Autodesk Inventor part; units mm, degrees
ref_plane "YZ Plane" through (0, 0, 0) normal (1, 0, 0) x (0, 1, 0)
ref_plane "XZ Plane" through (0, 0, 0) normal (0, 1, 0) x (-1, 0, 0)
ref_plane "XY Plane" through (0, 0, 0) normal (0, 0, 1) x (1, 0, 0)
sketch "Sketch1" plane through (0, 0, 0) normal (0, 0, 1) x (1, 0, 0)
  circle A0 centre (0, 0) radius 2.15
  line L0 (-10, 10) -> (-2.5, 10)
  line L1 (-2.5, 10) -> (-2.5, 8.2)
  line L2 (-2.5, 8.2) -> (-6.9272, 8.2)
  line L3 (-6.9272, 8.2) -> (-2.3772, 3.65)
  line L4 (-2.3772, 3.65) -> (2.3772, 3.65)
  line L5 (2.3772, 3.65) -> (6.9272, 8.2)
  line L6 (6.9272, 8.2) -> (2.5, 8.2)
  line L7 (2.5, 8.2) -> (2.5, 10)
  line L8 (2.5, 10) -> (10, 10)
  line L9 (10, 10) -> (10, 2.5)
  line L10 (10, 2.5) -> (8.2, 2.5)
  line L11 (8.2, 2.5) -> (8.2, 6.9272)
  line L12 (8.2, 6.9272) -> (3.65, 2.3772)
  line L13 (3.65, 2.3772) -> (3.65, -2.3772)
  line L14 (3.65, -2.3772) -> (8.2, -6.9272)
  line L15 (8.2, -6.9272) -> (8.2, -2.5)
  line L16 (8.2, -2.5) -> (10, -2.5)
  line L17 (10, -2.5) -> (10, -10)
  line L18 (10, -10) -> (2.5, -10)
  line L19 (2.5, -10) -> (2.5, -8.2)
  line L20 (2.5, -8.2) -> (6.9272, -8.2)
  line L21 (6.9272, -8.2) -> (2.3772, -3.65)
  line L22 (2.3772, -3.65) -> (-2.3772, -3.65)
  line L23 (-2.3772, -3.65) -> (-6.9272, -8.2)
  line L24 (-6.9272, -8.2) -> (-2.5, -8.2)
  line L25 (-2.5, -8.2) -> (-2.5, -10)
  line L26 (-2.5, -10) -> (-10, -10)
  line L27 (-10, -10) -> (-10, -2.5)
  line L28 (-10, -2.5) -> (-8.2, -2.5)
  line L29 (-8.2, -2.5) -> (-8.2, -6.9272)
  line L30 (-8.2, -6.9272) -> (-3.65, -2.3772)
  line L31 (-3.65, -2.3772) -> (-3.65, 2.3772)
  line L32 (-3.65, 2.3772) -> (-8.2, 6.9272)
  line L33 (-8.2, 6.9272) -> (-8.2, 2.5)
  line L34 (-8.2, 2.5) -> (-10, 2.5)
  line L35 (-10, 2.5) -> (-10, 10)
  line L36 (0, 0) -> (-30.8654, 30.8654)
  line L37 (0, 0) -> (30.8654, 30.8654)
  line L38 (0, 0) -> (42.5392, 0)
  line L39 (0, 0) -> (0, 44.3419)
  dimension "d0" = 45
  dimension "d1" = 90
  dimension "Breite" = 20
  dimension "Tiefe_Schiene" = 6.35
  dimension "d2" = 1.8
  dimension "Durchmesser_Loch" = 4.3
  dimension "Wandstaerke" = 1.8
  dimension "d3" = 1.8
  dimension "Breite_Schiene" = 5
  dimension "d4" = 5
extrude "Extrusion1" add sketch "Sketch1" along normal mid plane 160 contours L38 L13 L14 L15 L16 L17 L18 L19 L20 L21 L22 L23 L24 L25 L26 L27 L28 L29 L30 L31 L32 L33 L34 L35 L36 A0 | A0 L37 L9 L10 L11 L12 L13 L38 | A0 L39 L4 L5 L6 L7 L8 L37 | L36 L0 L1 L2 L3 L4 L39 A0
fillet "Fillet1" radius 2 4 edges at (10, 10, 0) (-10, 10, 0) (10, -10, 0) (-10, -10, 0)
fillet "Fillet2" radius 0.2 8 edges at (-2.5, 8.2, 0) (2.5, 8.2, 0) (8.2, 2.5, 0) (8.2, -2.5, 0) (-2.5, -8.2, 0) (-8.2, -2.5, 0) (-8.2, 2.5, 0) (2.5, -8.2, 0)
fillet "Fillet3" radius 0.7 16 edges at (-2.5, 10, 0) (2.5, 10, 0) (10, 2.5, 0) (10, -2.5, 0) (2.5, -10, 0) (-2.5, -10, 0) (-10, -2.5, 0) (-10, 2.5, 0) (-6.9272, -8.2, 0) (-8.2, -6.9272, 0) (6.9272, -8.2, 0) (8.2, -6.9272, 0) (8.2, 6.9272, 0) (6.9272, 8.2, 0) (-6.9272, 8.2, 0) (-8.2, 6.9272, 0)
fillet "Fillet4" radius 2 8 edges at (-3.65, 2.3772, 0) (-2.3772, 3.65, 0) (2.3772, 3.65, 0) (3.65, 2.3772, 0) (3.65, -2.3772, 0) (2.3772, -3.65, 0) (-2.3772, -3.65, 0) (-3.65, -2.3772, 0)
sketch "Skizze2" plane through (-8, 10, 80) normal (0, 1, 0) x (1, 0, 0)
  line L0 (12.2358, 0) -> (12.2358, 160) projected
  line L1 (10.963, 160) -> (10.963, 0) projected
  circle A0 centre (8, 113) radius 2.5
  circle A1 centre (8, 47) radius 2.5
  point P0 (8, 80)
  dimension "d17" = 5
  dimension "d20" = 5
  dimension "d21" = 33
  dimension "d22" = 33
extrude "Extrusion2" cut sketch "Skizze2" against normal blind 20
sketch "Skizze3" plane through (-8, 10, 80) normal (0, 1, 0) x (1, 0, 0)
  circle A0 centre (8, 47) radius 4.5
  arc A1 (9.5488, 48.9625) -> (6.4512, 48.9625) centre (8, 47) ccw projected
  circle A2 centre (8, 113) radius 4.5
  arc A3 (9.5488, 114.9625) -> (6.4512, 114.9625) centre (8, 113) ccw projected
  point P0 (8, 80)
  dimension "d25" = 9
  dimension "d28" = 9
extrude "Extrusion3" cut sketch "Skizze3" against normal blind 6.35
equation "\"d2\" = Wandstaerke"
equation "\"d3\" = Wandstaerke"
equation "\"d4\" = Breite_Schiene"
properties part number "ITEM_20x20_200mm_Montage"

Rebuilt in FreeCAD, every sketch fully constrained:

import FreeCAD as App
import Part
import Sketcher

V = App.Vector
Q = App.Units.Quantity


def edges_at(feature, points):
    """Names of the edges that pass closest to the given points."""
    edges = feature.Shape.Edges
    near = lambda p: min(range(len(edges)), key=lambda i: edges[i].distToShape(Part.Vertex(*p))[0])
    return sorted({f"Edge{near(p) + 1}" for p in points})

doc = App.newDocument("Part")
params = doc.addObject("Spreadsheet::Sheet", "Params")
for row, (alias, value) in enumerate([
    ("sketch1_diameter", "4.3 mm"),
    ("sketch1_width", "1.8 mm"),
    ("sketch1_width2", "7.5 mm"),
    ("pad1_length", "160 mm"),
    ("fillet_radius", "2 mm"),
    ("fillet2_radius", "0.2 mm"),
    ("fillet3_radius", "0.7 mm"),
    ("fillet4_radius", "2 mm"),
    ("sketch2_diameter", "5 mm"),
    ("pocket1_length", "20 mm"),
    ("sketch3_diameter", "9 mm"),
    ("pocket2_length", "6.35 mm"),
], start=1):
    params.set(f"A{row}", alias)
    params.set(f"B{row}", "=" + value)
    params.setAlias(f"B{row}", alias)

body = doc.addObject("PartDesign::Body", "Body")

# Sketch on XY plane
sketch1 = body.newObject("Sketcher::SketchObject", "Sketch")
sketch1.AttachmentSupport = (doc.getObject("XY_Plane"), [""])
sketch1.MapMode = "FlatFace"
sketch1.addGeometry([
    Part.LineSegment(V(3.6, -2.4, 0), V(3.6, 2.4, 0)),  # 0
    Part.LineSegment(V(3.6, 2.4, 0), V(8.2, 6.9, 0)),  # 1
    Part.LineSegment(V(8.2, 6.9, 0), V(8.2, 2.5, 0)),  # 2
    Part.LineSegment(V(8.2, 2.5, 0), V(10, 2.5, 0)),  # 3
    Part.LineSegment(V(10, 2.5, 0), V(10, 10, 0)),  # 4
    Part.LineSegment(V(10, 10, 0), V(2.5, 10, 0)),  # 5
    Part.LineSegment(V(2.5, 10, 0), V(2.5, 8.2, 0)),  # 6
    Part.LineSegment(V(2.5, 8.2, 0), V(6.9, 8.2, 0)),  # 7
    Part.LineSegment(V(6.9, 8.2, 0), V(2.4, 3.6, 0)),  # 8
    Part.LineSegment(V(2.4, 3.6, 0), V(-2.4, 3.6, 0)),  # 9
    Part.LineSegment(V(-2.4, 3.6, 0), V(-6.9, 8.2, 0)),  # 10
    Part.LineSegment(V(-6.9, 8.2, 0), V(-2.5, 8.2, 0)),  # 11
    Part.LineSegment(V(-2.5, 8.2, 0), V(-2.5, 10, 0)),  # 12
    Part.LineSegment(V(-2.5, 10, 0), V(-10, 10, 0)),  # 13
    Part.LineSegment(V(-10, 10, 0), V(-10, 2.5, 0)),  # 14
    Part.LineSegment(V(-10, 2.5, 0), V(-8.2, 2.5, 0)),  # 15
    Part.LineSegment(V(-8.2, 2.5, 0), V(-8.2, 6.9, 0)),  # 16
    Part.LineSegment(V(-8.2, 6.9, 0), V(-3.6, 2.4, 0)),  # 17
    Part.LineSegment(V(-3.6, 2.4, 0), V(-3.6, -2.4, 0)),  # 18
    Part.LineSegment(V(-3.6, -2.4, 0), V(-8.2, -6.9, 0)),  # 19
    Part.LineSegment(V(-8.2, -6.9, 0), V(-8.2, -2.5, 0)),  # 20
    Part.LineSegment(V(-8.2, -2.5, 0), V(-10, -2.5, 0)),  # 21
    Part.LineSegment(V(-10, -2.5, 0), V(-10, -10, 0)),  # 22
    Part.LineSegment(V(-10, -10, 0), V(-2.5, -10, 0)),  # 23
    Part.LineSegment(V(-2.5, -10, 0), V(-2.5, -8.2, 0)),  # 24
    Part.LineSegment(V(-2.5, -8.2, 0), V(-6.9, -8.2, 0)),  # 25
    Part.LineSegment(V(-6.9, -8.2, 0), V(-2.4, -3.6, 0)),  # 26
    Part.LineSegment(V(-2.4, -3.6, 0), V(2.4, -3.6, 0)),  # 27
    Part.LineSegment(V(2.4, -3.6, 0), V(6.9, -8.2, 0)),  # 28
    Part.LineSegment(V(6.9, -8.2, 0), V(2.5, -8.2, 0)),  # 29
    Part.LineSegment(V(2.5, -8.2, 0), V(2.5, -10, 0)),  # 30
    Part.LineSegment(V(2.5, -10, 0), V(10, -10, 0)),  # 31
    Part.LineSegment(V(10, -10, 0), V(10, -2.5, 0)),  # 32
    Part.LineSegment(V(10, -2.5, 0), V(8.2, -2.5, 0)),  # 33
    Part.LineSegment(V(8.2, -2.5, 0), V(8.2, -6.9, 0)),  # 34
    Part.LineSegment(V(8.2, -6.9, 0), V(3.6, -2.4, 0)),  # 35
    Part.Circle(V(0, 0, 0), V(0, 0, 1), 2.1),  # 36
], False)
sketch1.addConstraint([
    Sketcher.Constraint("Coincident", 0, 2, 1, 1),
    Sketcher.Constraint("Coincident", 1, 2, 2, 1),
    Sketcher.Constraint("Coincident", 2, 2, 3, 1),
    Sketcher.Constraint("Coincident", 3, 2, 4, 1),
    Sketcher.Constraint("Coincident", 4, 2, 5, 1),
    Sketcher.Constraint("Coincident", 5, 2, 6, 1),
    Sketcher.Constraint("Coincident", 6, 2, 7, 1),
    Sketcher.Constraint("Coincident", 7, 2, 8, 1),
    Sketcher.Constraint("Coincident", 8, 2, 9, 1),
    Sketcher.Constraint("Coincident", 9, 2, 10, 1),
    Sketcher.Constraint("Coincident", 10, 2, 11, 1),
    Sketcher.Constraint("Coincident", 11, 2, 12, 1),
    Sketcher.Constraint("Coincident", 12, 2, 13, 1),
    Sketcher.Constraint("Coincident", 13, 2, 14, 1),
    Sketcher.Constraint("Coincident", 14, 2, 15, 1),
    Sketcher.Constraint("Coincident", 15, 2, 16, 1),
    Sketcher.Constraint("Coincident", 16, 2, 17, 1),
    Sketcher.Constraint("Coincident", 17, 2, 18, 1),
    Sketcher.Constraint("Coincident", 18, 2, 19, 1),
    Sketcher.Constraint("Coincident", 19, 2, 20, 1),
    Sketcher.Constraint("Coincident", 20, 2, 21, 1),
    Sketcher.Constraint("Coincident", 21, 2, 22, 1),
    Sketcher.Constraint("Coincident", 22, 2, 23, 1),
    Sketcher.Constraint("Coincident", 23, 2, 24, 1),
    Sketcher.Constraint("Coincident", 24, 2, 25, 1),
    Sketcher.Constraint("Coincident", 25, 2, 26, 1),
    Sketcher.Constraint("Coincident", 26, 2, 27, 1),
    Sketcher.Constraint("Coincident", 27, 2, 28, 1),
    Sketcher.Constraint("Coincident", 28, 2, 29, 1),
    Sketcher.Constraint("Coincident", 29, 2, 30, 1),
    Sketcher.Constraint("Coincident", 30, 2, 31, 1),
    Sketcher.Constraint("Coincident", 31, 2, 32, 1),
    Sketcher.Constraint("Coincident", 32, 2, 33, 1),
    Sketcher.Constraint("Coincident", 33, 2, 34, 1),
    Sketcher.Constraint("Coincident", 34, 2, 35, 1),
    Sketcher.Constraint("Coincident", 35, 2, 0, 1),
    Sketcher.Constraint("Vertical", 0),
    Sketcher.Constraint("Vertical", 2),
    Sketcher.Constraint("Horizontal", 3),
    Sketcher.Constraint("Vertical", 4),
    Sketcher.Constraint("Horizontal", 5),
    Sketcher.Constraint("Vertical", 6),
    Sketcher.Constraint("Horizontal", 7),
    Sketcher.Constraint("Horizontal", 9),
    Sketcher.Constraint("Horizontal", 11),
    Sketcher.Constraint("Vertical", 12),
    Sketcher.Constraint("Horizontal", 13),
    Sketcher.Constraint("Vertical", 14),
    Sketcher.Constraint("Horizontal", 15),
    Sketcher.Constraint("Vertical", 16),
    Sketcher.Constraint("Vertical", 18),
    Sketcher.Constraint("Vertical", 20),
    Sketcher.Constraint("Horizontal", 21),
    Sketcher.Constraint("Vertical", 22),
    Sketcher.Constraint("Horizontal", 23),
    Sketcher.Constraint("Vertical", 24),
    Sketcher.Constraint("Horizontal", 25),
    Sketcher.Constraint("Horizontal", 27),
    Sketcher.Constraint("Horizontal", 29),
    Sketcher.Constraint("Vertical", 30),
    Sketcher.Constraint("Horizontal", 31),
    Sketcher.Constraint("Vertical", 32),
    Sketcher.Constraint("Horizontal", 33),
    Sketcher.Constraint("Vertical", 34),
    Sketcher.Constraint("Coincident", 36, 3, -1, 1),
    Sketcher.Constraint("Symmetric", 0, 2, 18, 2, -1, 1),
    Sketcher.Constraint("Symmetric", 1, 2, 19, 2, -1, 1),
    Sketcher.Constraint("Symmetric", 3, 2, 21, 2, -1, 1),
    Sketcher.Constraint("Symmetric", 5, 2, 23, 2, -1, 1),
    Sketcher.Constraint("Symmetric", 7, 2, 25, 2, -1, 1),
    Sketcher.Constraint("Symmetric", 8, 2, 26, 2, -1, 1),
    Sketcher.Constraint("Symmetric", 10, 2, 28, 2, -1, 1),
    Sketcher.Constraint("Symmetric", 12, 2, 30, 2, -1, 1),
    Sketcher.Constraint("Symmetric", 14, 2, 32, 2, -1, 1),
    Sketcher.Constraint("Symmetric", 16, 2, 34, 2, -1, 1),
    Sketcher.Constraint("Symmetric", 7, 2, 10, 2, -2),
    Sketcher.Constraint("Symmetric", 5, 2, 12, 2, -2),
    Sketcher.Constraint("Symmetric", 3, 2, 14, 2, -2),
    Sketcher.Constraint("Symmetric", 1, 2, 16, 2, -2),
    Sketcher.Constraint("Parallel", 1, 8),
    Sketcher.Constraint("Perpendicular", 8, 10),
    Sketcher.Constraint("Parallel", 10, 17),
    Sketcher.Constraint("Perpendicular", 26, 28),
    Sketcher.Constraint("Parallel", 28, 35),
    Sketcher.Constraint("Horizontal", 0, 2, 17, 2),
    Sketcher.Constraint("Equal", 27, 0),
    Sketcher.Constraint("Equal", 29, 2),
    Sketcher.Constraint("Equal", 31, 4),
    Sketcher.Constraint("Equal", 33, 6),
    Sketcher.Constraint("Equal", 1, 8),
    Sketcher.Constraint("Diameter", 36, Q("4.3 mm")),
    Sketcher.Constraint("DistanceX", 3, 1, 3, 2, Q("1.8 mm")),
    Sketcher.Constraint("DistanceX", 11, 2, 6, 2, Q("5 mm")),
    Sketcher.Constraint("DistanceX", 0, 2, 3, 2, Q("6.35 mm")),
    Sketcher.Constraint("DistanceX", 5, 2, 5, 1, Q("7.5 mm")),
    Sketcher.Constraint("DistanceX", 7, 1, 7, 2, Q("4.4272 mm")),
])
sketch1.setExpression("Constraints[90]", "Params.sketch1_diameter")
sketch1.setExpression("Constraints[91]", "Params.sketch1_width")
sketch1.setExpression("Constraints[94]", "Params.sketch1_width2")
pad1 = body.newObject("PartDesign::Pad", "Pad")
pad1.Profile = sketch1
pad1.setExpression("Length", "Params.pad1_length")
pad1.Midplane = True
doc.recompute()

fillet = body.newObject("PartDesign::Fillet", "Fillet")
fillet.Base = (pad1, edges_at(pad1, [
    (10, 10, 0),
    (-10, 10, 0),
    (10, -10, 0),
    (-10, -10, 0),
]))
fillet.setExpression("Radius", "Params.fillet_radius")
doc.recompute()

fillet2 = body.newObject("PartDesign::Fillet", "Fillet001")
fillet2.Base = (fillet, edges_at(fillet, [
    (-2.5, 8.2, 0),
    (2.5, 8.2, 0),
    (8.2, 2.5, 0),
    (8.2, -2.5, 0),
    (-2.5, -8.2, 0),
    (-8.2, -2.5, 0),
    (-8.2, 2.5, 0),
    (2.5, -8.2, 0),
]))
fillet2.setExpression("Radius", "Params.fillet2_radius")
doc.recompute()

fillet3 = body.newObject("PartDesign::Fillet", "Fillet002")
fillet3.Base = (fillet2, edges_at(fillet2, [
    (-2.5, 10, 0),
    (2.5, 10, 0),
    (10, 2.5, 0),
    (10, -2.5, 0),
    (2.5, -10, 0),
    (-2.5, -10, 0),
    (-10, -2.5, 0),
    (-10, 2.5, 0),
    (-6.927, -8.2, 0),
    (-8.2, -6.927, 0),
    (6.927, -8.2, 0),
    (8.2, -6.927, 0),
    (8.2, 6.927, 0),
    (6.927, 8.2, 0),
    (-6.927, 8.2, 0),
    (-8.2, 6.927, 0),
]))
fillet3.setExpression("Radius", "Params.fillet3_radius")
doc.recompute()

fillet4 = body.newObject("PartDesign::Fillet", "Fillet003")
fillet4.Base = (fillet3, edges_at(fillet3, [
    (-3.65, 2.377, 0),
    (-2.377, 3.65, 0),
    (2.377, 3.65, 0),
    (3.65, 2.377, 0),
    (3.65, -2.377, 0),
    (2.377, -3.65, 0),
    (-2.377, -3.65, 0),
    (-3.65, -2.377, 0),
]))
fillet4.setExpression("Radius", "Params.fillet4_radius")

# Sketch on XZ plane
sketch2 = body.newObject("Sketcher::SketchObject", "Sketch001")
sketch2.AttachmentSupport = (doc.getObject("XZ_Plane"), [""])
sketch2.MapMode = "FlatFace"
sketch2.AttachmentOffset = App.Placement(V(0, 0, -10), App.Rotation())
sketch2.addGeometry([
    Part.Circle(V(0, -33, 0), V(0, 0, 1), 2.5),
    Part.Circle(V(0, 33, 0), V(0, 0, 1), 2.5),
], False)
sketch2.addConstraint([
    Sketcher.Constraint("Equal", 0, 1),
    Sketcher.Constraint("Symmetric", 0, 3, 1, 3, -1, 1),
    Sketcher.Constraint("PointOnObject", 0, 3, -2),
    Sketcher.Constraint("Diameter", 0, Q("5 mm")),
    Sketcher.Constraint("DistanceY", 0, 3, -1, 1, Q("33 mm")),
])
sketch2.setExpression("Constraints[3]", "Params.sketch2_diameter")
pocket1 = body.newObject("PartDesign::Pocket", "Pocket")
pocket1.Profile = sketch2
pocket1.setExpression("Length", "Params.pocket1_length")
pocket1.Reversed = True

# Sketch on XZ plane
sketch3 = body.newObject("Sketcher::SketchObject", "Sketch002")
sketch3.AttachmentSupport = (doc.getObject("XZ_Plane"), [""])
sketch3.MapMode = "FlatFace"
sketch3.AttachmentOffset = App.Placement(V(0, 0, -10), App.Rotation())
sketch3.addGeometry([
    Part.Circle(V(0, 33, 0), V(0, 0, 1), 4.5),
    Part.Circle(V(0, -33, 0), V(0, 0, 1), 4.5),
], False)
sketch3.addConstraint([
    Sketcher.Constraint("Equal", 0, 1),
    Sketcher.Constraint("Symmetric", 0, 3, 1, 3, -1, 1),
    Sketcher.Constraint("PointOnObject", 0, 3, -2),
    Sketcher.Constraint("Diameter", 0, Q("9 mm")),
    Sketcher.Constraint("DistanceY", -1, 1, 0, 3, Q("33 mm")),
])
sketch3.setExpression("Constraints[3]", "Params.sketch3_diameter")
pocket2 = body.newObject("PartDesign::Pocket", "Pocket001")
pocket2.Profile = sketch3
pocket2.setExpression("Length", "Params.pocket2_length")
pocket2.Reversed = True

doc.recompute()
